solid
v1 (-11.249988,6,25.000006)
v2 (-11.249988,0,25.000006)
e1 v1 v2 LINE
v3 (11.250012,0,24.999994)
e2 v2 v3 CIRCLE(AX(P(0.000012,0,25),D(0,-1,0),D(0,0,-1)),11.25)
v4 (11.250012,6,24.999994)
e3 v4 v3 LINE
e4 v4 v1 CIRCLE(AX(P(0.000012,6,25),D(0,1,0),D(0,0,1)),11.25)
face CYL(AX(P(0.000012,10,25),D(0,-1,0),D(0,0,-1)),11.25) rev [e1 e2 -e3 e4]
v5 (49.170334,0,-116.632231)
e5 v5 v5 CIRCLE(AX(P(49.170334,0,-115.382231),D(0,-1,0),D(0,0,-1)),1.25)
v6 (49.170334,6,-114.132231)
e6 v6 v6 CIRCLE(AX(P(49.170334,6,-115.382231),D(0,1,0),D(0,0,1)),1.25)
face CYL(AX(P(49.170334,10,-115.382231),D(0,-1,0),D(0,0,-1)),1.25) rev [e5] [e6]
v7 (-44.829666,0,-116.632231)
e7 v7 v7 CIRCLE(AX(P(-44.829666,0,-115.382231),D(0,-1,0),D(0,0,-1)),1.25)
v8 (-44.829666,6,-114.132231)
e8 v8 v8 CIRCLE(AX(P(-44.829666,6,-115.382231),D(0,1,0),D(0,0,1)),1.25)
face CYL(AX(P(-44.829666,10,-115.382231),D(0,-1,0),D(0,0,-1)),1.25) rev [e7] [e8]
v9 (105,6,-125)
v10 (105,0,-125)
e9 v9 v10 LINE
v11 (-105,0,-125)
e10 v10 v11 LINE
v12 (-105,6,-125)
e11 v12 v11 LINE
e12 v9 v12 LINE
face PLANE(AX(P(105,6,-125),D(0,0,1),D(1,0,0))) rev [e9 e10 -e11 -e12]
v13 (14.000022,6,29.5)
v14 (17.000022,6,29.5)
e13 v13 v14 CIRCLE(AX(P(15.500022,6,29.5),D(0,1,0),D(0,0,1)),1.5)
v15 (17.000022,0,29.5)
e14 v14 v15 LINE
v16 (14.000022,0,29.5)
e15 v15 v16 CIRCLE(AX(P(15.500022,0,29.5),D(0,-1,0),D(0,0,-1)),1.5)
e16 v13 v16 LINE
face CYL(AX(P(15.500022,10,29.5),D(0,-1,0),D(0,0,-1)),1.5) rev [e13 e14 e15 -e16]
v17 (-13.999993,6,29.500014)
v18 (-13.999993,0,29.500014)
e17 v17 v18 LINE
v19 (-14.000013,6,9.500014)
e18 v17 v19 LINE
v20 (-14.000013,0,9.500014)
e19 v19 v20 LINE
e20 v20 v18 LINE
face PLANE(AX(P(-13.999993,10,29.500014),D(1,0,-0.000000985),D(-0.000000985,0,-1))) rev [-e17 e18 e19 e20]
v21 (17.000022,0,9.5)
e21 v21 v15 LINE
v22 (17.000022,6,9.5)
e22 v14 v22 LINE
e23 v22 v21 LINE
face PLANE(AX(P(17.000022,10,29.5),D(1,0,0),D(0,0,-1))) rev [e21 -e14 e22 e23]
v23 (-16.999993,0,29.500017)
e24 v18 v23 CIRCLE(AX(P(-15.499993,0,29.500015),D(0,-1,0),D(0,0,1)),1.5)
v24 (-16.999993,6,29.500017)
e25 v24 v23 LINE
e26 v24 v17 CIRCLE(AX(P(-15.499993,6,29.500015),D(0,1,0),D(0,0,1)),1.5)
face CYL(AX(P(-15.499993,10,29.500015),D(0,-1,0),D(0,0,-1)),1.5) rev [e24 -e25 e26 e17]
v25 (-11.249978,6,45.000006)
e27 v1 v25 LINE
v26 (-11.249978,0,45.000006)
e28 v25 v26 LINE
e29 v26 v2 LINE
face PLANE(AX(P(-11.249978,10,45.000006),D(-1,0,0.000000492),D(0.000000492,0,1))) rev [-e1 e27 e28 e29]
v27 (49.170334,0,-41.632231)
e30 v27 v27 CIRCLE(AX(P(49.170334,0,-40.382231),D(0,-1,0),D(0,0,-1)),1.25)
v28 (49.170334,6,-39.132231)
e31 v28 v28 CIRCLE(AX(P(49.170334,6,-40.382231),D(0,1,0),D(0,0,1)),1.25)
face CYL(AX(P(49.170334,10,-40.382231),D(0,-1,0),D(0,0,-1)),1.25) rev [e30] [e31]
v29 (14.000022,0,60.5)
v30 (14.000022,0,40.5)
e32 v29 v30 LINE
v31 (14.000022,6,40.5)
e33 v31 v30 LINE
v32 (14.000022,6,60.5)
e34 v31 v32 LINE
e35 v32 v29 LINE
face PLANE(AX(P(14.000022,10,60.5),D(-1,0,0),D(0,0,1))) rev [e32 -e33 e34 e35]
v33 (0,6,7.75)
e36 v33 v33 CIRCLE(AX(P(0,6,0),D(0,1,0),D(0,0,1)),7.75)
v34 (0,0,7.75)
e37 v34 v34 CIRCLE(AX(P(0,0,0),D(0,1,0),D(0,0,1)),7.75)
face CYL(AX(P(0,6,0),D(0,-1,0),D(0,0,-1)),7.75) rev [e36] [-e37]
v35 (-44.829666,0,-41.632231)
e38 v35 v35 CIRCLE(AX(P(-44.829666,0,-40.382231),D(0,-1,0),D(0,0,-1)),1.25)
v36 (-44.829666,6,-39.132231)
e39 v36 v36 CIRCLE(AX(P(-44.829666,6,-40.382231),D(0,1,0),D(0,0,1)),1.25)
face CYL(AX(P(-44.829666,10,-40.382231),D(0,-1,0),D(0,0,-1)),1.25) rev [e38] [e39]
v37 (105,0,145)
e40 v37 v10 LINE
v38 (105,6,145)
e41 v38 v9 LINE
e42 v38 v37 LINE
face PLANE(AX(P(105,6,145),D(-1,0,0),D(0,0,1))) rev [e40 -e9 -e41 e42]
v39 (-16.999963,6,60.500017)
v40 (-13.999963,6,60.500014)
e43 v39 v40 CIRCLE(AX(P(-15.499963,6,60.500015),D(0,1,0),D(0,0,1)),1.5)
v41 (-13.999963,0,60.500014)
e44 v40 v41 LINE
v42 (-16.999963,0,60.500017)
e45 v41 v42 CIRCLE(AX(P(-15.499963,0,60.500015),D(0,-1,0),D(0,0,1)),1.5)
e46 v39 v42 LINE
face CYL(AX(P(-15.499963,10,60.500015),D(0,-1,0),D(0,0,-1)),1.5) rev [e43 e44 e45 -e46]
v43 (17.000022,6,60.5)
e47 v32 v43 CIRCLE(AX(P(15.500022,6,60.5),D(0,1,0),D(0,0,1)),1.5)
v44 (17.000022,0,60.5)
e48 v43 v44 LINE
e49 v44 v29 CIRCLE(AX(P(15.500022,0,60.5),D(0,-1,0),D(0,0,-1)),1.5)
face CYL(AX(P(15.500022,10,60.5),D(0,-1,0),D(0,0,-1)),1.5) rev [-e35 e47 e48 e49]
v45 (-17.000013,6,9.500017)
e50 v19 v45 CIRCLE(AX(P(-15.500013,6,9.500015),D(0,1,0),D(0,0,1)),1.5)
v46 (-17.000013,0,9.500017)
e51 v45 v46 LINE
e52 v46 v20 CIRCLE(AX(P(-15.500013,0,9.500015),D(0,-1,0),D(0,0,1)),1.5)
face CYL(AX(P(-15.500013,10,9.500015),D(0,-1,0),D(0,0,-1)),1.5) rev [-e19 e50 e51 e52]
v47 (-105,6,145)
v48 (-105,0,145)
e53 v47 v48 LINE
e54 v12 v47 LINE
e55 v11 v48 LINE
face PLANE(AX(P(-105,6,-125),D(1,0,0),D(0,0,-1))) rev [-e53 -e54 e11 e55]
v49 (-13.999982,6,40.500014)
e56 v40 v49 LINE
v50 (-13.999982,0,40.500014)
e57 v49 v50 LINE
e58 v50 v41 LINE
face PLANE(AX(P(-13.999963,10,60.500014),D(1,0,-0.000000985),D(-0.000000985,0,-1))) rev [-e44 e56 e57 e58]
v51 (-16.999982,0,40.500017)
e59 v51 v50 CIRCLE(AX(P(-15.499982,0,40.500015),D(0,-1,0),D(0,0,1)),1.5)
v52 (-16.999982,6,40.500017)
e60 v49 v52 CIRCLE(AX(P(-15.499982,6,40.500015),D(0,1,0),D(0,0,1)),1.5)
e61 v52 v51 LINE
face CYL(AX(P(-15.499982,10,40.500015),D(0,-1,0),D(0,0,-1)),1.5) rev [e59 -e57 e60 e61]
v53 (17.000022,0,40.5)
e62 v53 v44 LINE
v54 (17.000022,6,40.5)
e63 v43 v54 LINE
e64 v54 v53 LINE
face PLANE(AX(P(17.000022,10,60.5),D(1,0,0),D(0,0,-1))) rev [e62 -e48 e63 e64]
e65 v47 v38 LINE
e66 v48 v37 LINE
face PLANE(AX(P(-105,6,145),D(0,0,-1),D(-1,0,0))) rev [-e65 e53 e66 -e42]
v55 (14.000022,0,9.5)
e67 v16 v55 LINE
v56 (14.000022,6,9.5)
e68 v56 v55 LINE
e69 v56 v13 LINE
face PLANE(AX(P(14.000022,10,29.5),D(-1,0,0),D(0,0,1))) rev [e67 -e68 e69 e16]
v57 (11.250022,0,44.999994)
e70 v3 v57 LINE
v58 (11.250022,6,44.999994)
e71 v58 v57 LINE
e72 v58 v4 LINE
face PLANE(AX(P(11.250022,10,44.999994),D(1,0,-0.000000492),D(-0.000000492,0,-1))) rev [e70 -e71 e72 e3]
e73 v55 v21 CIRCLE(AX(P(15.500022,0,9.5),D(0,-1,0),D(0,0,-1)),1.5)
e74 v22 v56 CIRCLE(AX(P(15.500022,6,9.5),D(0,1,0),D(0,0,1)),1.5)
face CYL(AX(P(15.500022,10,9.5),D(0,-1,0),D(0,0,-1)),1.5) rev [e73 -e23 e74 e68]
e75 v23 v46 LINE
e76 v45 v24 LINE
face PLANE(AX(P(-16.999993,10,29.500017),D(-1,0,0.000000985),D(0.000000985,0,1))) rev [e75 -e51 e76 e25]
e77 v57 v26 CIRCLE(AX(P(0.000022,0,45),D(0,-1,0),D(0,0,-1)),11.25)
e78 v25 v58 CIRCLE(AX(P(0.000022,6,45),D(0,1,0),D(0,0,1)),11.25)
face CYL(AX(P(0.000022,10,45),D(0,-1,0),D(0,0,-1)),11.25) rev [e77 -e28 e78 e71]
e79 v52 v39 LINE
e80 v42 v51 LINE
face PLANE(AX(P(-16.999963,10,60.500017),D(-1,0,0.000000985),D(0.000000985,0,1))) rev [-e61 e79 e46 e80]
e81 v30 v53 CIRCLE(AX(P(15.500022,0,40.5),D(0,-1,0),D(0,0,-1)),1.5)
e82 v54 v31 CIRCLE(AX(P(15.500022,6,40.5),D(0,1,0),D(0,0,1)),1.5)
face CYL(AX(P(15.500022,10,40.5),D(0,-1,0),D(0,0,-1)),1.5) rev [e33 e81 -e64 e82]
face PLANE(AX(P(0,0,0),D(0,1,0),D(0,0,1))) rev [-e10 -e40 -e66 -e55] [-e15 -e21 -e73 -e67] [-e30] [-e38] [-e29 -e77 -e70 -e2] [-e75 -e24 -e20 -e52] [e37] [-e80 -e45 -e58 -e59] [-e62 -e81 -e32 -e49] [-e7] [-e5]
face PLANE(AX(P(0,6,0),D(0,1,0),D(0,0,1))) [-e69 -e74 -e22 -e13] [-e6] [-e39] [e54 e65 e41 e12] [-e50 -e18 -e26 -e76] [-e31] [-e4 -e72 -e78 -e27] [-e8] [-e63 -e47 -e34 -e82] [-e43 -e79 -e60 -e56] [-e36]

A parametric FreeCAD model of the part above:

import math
import FreeCAD as App
import Part
import Sketcher

V = App.Vector
Q = App.Units.Quantity

doc = App.newDocument("Part")
body = doc.addObject("PartDesign::Body", "Body")

# Sketch on XZ plane
sketch1 = body.newObject("Sketcher::SketchObject", "Sketch")
sketch1.AttachmentSupport = (doc.getObject("XZ_Plane"), [""])
sketch1.MapMode = "FlatFace"
sketch1.addGeometry([
    Part.LineSegment(V(-105, -125, 0), V(-105, 145, 0)),  # 0
    Part.LineSegment(V(-105, 145, 0), V(105, 145, 0)),  # 1
    Part.LineSegment(V(105, 145, 0), V(105, -125, 0)),  # 2
    Part.LineSegment(V(105, -125, 0), V(-105, -125, 0)),  # 3
    Part.Circle(V(0, 0, 0), V(0, 0, 1), 8),  # 4
], False)
sketch1.addConstraint([
    Sketcher.Constraint("Coincident", 0, 2, 1, 1),
    Sketcher.Constraint("Coincident", 1, 2, 2, 1),
    Sketcher.Constraint("Coincident", 2, 2, 3, 1),
    Sketcher.Constraint("Coincident", 3, 2, 0, 1),
    Sketcher.Constraint("Vertical", 0),
    Sketcher.Constraint("Horizontal", 1),
    Sketcher.Constraint("Vertical", 2),
    Sketcher.Constraint("Horizontal", 3),
    Sketcher.Constraint("Coincident", 4, 3, -1, 1),
    Sketcher.Constraint("Diameter", 4, Q("15.5 mm")),
    Sketcher.Constraint("DistanceX", 1, 1, 1, 2, Q("210 mm")),
    Sketcher.Constraint("DistanceY", 0, 1, 0, 2, Q("270 mm")),
    Sketcher.Constraint("DistanceX", 0, 2, -1, 1, Q("105 mm")),
    Sketcher.Constraint("DistanceY", -1, 1, 0, 2, Q("145 mm")),
])
pad1 = body.newObject("PartDesign::Pad", "Pad")
pad1.Profile = sketch1
pad1.Length = 6
pad1.Reversed = True

# Sketch on XZ plane
sketch2 = body.newObject("Sketcher::SketchObject", "Sketch001")
sketch2.AttachmentSupport = (doc.getObject("XZ_Plane"), [""])
sketch2.MapMode = "FlatFace"
sketch2.addGeometry([
    Part.LineSegment(V(17.000022, 9.5, 0), V(17.000022, 29.5, 0)),  # 0
    Part.ArcOfCircle(Part.Circle(V(15.500022, 29.5, 0), V(0, 0, 1), 1.5), math.radians(0), math.radians(180)),  # 1
    Part.LineSegment(V(14.000022, 29.5, 0), V(14.000022, 9.5, 0)),  # 2
    Part.ArcOfCircle(Part.Circle(V(15.500022, 9.5, 0), V(0, 0, 1), 1.5), math.radians(180), math.radians(360)),  # 3
    Part.LineSegment(V(17.000022, 40.5, 0), V(17.000022, 60.5, 0)),  # 4
    Part.ArcOfCircle(Part.Circle(V(15.500022, 60.5, 0), V(0, 0, 1), 1.5), math.radians(0), math.radians(180)),  # 5
    Part.LineSegment(V(14.000022, 60.5, 0), V(14.000022, 40.5, 0)),  # 6
    Part.ArcOfCircle(Part.Circle(V(15.500022, 40.5, 0), V(0, 0, 1), 1.5), math.radians(180), math.radians(360)),  # 7
    Part.LineSegment(V(-16.999993, 29.500017, 0), V(-17.000013, 9.500017, 0)),  # 8
    Part.ArcOfCircle(Part.Circle(V(-15.500013, 9.500015, 0), V(0, 0, 1), 1.5), math.radians(179.999944), math.radians(359.999944)),  # 9
    Part.LineSegment(V(-14.000013, 9.500014, 0), V(-13.999993, 29.500014, 0)),  # 10
    Part.ArcOfCircle(Part.Circle(V(-15.499993, 29.500015, 0), V(0, 0, 1), 1.5), math.radians(-0.000056), math.radians(179.999944)),  # 11
    Part.LineSegment(V(-16.999963, 60.500017, 0), V(-16.999982, 40.500017, 0)),  # 12
    Part.ArcOfCircle(Part.Circle(V(-15.499982, 40.500015, 0), V(0, 0, 1), 1.5), math.radians(179.999944), math.radians(359.999944)),  # 13
    Part.LineSegment(V(-13.999982, 40.500014, 0), V(-13.999963, 60.500014, 0)),  # 14
    Part.ArcOfCircle(Part.Circle(V(-15.499963, 60.500015, 0), V(0, 0, 1), 1.5), math.radians(-0.000056), math.radians(179.999944)),  # 15
    Part.LineSegment(V(11.250012, 24.999994, 0), V(11.250022, 44.999994, 0)),  # 16
    Part.ArcOfCircle(Part.Circle(V(0.000022, 45, 0), V(0, 0, 1), 11.25), math.radians(-0.000028), math.radians(179.999972)),  # 17
    Part.LineSegment(V(-11.249978, 45.000006, 0), V(-11.249988, 25.000006, 0)),  # 18
    Part.ArcOfCircle(Part.Circle(V(0.000012, 25, 0), V(0, 0, 1), 11.25), math.radians(179.999972), math.radians(359.999972)),  # 19
], False)
sketch2.addConstraint([
    Sketcher.Constraint("Coincident", 0, 2, 1, 1),
    Sketcher.Constraint("Coincident", 1, 2, 2, 1),
    Sketcher.Constraint("Coincident", 2, 2, 3, 1),
    Sketcher.Constraint("Coincident", 3, 2, 0, 1),
    Sketcher.Constraint("Coincident", 4, 2, 5, 1),
    Sketcher.Constraint("Coincident", 5, 2, 6, 1),
    Sketcher.Constraint("Coincident", 6, 2, 7, 1),
    Sketcher.Constraint("Coincident", 7, 2, 4, 1),
    Sketcher.Constraint("Coincident", 8, 2, 9, 1),
    Sketcher.Constraint("Coincident", 9, 2, 10, 1),
    Sketcher.Constraint("Coincident", 10, 2, 11, 1),
    Sketcher.Constraint("Coincident", 11, 2, 8, 1),
    Sketcher.Constraint("Coincident", 12, 2, 13, 1),
    Sketcher.Constraint("Coincident", 13, 2, 14, 1),
    Sketcher.Constraint("Coincident", 14, 2, 15, 1),
    Sketcher.Constraint("Coincident", 15, 2, 12, 1),
    Sketcher.Constraint("Coincident", 16, 2, 17, 1),
    Sketcher.Constraint("Coincident", 17, 2, 18, 1),
    Sketcher.Constraint("Coincident", 18, 2, 19, 1),
    Sketcher.Constraint("Coincident", 19, 2, 16, 1),
    Sketcher.Constraint("Vertical", 0),
    Sketcher.Constraint("Vertical", 2),
    Sketcher.Constraint("Vertical", 4),
    Sketcher.Constraint("Vertical", 6),
    Sketcher.Constraint("Radius", 1, Q("1.5 mm")),
    Sketcher.Constraint("Radius", 5, Q("1.5 mm")),
    Sketcher.Constraint("Radius", 9, Q("1.5 mm")),
    Sketcher.Constraint("Radius", 11, Q("1.5 mm")),
    Sketcher.Constraint("Radius", 13, Q("1.5 mm")),
    Sketcher.Constraint("Radius", 15, Q("1.5 mm")),
    Sketcher.Constraint("DistanceY", 0, 1, 0, 2, Q("20 mm")),
    Sketcher.Constraint("DistanceY", 2, 2, 2, 1, Q("20 mm")),
    Sketcher.Constraint("DistanceY", 4, 1, 4, 2, Q("20 mm")),
    Sketcher.Constraint("DistanceY", 6, 2, 6, 1, Q("20 mm")),
    Sketcher.Constraint("Radius", 17, Q("11.25 mm")),
    Sketcher.Constraint("Radius", 19, Q("11.25 mm")),
    Sketcher.Constraint("Distance", 8, Q("20 mm")),
    Sketcher.Constraint("Distance", 10, Q("20 mm")),
    Sketcher.Constraint("Distance", 12, Q("20 mm")),
    Sketcher.Constraint("Distance", 14, Q("20 mm")),
    Sketcher.Constraint("Distance", 16, Q("20 mm")),
    Sketcher.Constraint("Distance", 18, Q("20 mm")),
    Sketcher.Constraint("DistanceY", -1, 1, 17, 3, Q("45 mm")),
    Sketcher.Constraint("DistanceY", -1, 1, 19, 3, Q("25 mm")),
    Sketcher.Constraint("DistanceY", 3, 3, 1, 3, Q("20 mm")),
    Sketcher.Constraint("DistanceY", 1, 3, 5, 3, Q("31 mm")),
    Sketcher.Constraint("DistanceY", 1, 3, 7, 3, Q("11 mm")),
    Sketcher.Constraint("DistanceY", 9, 3, 11, 3, Q("20 mm")),
    Sketcher.Constraint("DistanceY", 11, 3, 13, 3, Q("11 mm")),
    Sketcher.Constraint("DistanceY", 13, 3, 15, 3, Q("20 mm")),
    Sketcher.Constraint("DistanceY", 0, 2, 7, 3, Q("11 mm")),
    Sketcher.Constraint("DistanceX", 17, 3, 0, 2, Q("17 mm")),
    Sketcher.Constraint("DistanceY", 1, 2, 7, 3, Q("11 mm")),
    Sketcher.Constraint("DistanceY", 7, 3, 4, 2, Q("20 mm")),
    Sketcher.Constraint("DistanceX", 17, 3, 4, 2, Q("17 mm")),
    Sketcher.Constraint("DistanceY", 7, 3, 5, 2, Q("20 mm")),
    Sketcher.Constraint("DistanceY", 8, 2, 11, 3, Q("19.999999 mm")),
    Sketcher.Constraint("DistanceY", 9, 2, 11, 3, Q("20.000001 mm")),
    Sketcher.Constraint("DistanceY", 11, 2, 12, 2, Q("11 mm")),
    Sketcher.Constraint("DistanceY", 10, 2, 13, 2, Q("11 mm")),
    Sketcher.Constraint("DistanceY", -1, 1, 1, 3, Q("29.5 mm")),
    Sketcher.Constraint("DistanceX", 19, 3, 1, 3, Q("15.50001 mm")),
    Sketcher.Constraint("DistanceX", 8, 2, 11, 3, Q("1.50002 mm")),
    Sketcher.Constraint("DistanceX", 8, 2, 13, 3, Q("1.500031 mm")),
    Sketcher.Constraint("DistanceX", 13, 3, 14, 2, Q("1.50002 mm")),
    Sketcher.Constraint("DistanceY", 13, 2, 17, 2, Q("4.499992 mm")),
    Sketcher.Constraint("DistanceX", -1, 1, 1, 3, Q("15.500022 mm")),
    Sketcher.Constraint("DistanceX", 9, 3, -1, 1, Q("15.500013 mm")),
    Sketcher.Constraint("DistanceY", -1, 1, 9, 3, Q("9.500015 mm")),
    Sketcher.Constraint("DistanceY", -1, 1, 16, 2, Q("44.999994 mm")),
])
pocket1 = body.newObject("PartDesign::Pocket", "Pocket")
pocket1.Profile = sketch2
pocket1.Length = 10

# Sketch on XZ plane
sketch3 = body.newObject("Sketcher::SketchObject", "Sketch002")
sketch3.AttachmentSupport = (doc.getObject("XZ_Plane"), [""])
sketch3.MapMode = "FlatFace"
sketch3.addGeometry([
    Part.Circle(V(49.2, -115.4, 0), V(0, 0, 1), 1.2),
    Part.Circle(V(-44.8, -115.4, 0), V(0, 0, 1), 1.2),
    Part.Circle(V(49.2, -40.4, 0), V(0, 0, 1), 1.2),
    Part.Circle(V(-44.8, -40.4, 0), V(0, 0, 1), 1.2),
], False)
sketch3.addConstraint([
    Sketcher.Constraint("Equal", 0, 1),
    Sketcher.Constraint("Equal", 1, 2),
    Sketcher.Constraint("Equal", 2, 3),
    Sketcher.Constraint("Horizontal", 0, 3, 1, 3),
    Sketcher.Constraint("Horizontal", 2, 3, 3, 3),
    Sketcher.Constraint("Vertical", 0, 3, 2, 3),
    Sketcher.Constraint("Vertical", 1, 3, 3, 3),
    Sketcher.Constraint("Diameter", 0, Q("2.5 mm")),
    Sketcher.Constraint("DistanceX", 1, 3, 0, 3, Q("94 mm")),
    Sketcher.Constraint("DistanceY", 0, 3, 2, 3, Q("75 mm")),
    Sketcher.Constraint("DistanceY", 0, 3, -1, 1, Q("115.382231 mm")),
    Sketcher.Constraint("DistanceX", -1, 1, 0, 3, Q("49.170334 mm")),
])
pocket2 = body.newObject("PartDesign::Pocket", "Pocket001")
pocket2.Profile = sketch3
pocket2.Length = 10

doc.recompute()
